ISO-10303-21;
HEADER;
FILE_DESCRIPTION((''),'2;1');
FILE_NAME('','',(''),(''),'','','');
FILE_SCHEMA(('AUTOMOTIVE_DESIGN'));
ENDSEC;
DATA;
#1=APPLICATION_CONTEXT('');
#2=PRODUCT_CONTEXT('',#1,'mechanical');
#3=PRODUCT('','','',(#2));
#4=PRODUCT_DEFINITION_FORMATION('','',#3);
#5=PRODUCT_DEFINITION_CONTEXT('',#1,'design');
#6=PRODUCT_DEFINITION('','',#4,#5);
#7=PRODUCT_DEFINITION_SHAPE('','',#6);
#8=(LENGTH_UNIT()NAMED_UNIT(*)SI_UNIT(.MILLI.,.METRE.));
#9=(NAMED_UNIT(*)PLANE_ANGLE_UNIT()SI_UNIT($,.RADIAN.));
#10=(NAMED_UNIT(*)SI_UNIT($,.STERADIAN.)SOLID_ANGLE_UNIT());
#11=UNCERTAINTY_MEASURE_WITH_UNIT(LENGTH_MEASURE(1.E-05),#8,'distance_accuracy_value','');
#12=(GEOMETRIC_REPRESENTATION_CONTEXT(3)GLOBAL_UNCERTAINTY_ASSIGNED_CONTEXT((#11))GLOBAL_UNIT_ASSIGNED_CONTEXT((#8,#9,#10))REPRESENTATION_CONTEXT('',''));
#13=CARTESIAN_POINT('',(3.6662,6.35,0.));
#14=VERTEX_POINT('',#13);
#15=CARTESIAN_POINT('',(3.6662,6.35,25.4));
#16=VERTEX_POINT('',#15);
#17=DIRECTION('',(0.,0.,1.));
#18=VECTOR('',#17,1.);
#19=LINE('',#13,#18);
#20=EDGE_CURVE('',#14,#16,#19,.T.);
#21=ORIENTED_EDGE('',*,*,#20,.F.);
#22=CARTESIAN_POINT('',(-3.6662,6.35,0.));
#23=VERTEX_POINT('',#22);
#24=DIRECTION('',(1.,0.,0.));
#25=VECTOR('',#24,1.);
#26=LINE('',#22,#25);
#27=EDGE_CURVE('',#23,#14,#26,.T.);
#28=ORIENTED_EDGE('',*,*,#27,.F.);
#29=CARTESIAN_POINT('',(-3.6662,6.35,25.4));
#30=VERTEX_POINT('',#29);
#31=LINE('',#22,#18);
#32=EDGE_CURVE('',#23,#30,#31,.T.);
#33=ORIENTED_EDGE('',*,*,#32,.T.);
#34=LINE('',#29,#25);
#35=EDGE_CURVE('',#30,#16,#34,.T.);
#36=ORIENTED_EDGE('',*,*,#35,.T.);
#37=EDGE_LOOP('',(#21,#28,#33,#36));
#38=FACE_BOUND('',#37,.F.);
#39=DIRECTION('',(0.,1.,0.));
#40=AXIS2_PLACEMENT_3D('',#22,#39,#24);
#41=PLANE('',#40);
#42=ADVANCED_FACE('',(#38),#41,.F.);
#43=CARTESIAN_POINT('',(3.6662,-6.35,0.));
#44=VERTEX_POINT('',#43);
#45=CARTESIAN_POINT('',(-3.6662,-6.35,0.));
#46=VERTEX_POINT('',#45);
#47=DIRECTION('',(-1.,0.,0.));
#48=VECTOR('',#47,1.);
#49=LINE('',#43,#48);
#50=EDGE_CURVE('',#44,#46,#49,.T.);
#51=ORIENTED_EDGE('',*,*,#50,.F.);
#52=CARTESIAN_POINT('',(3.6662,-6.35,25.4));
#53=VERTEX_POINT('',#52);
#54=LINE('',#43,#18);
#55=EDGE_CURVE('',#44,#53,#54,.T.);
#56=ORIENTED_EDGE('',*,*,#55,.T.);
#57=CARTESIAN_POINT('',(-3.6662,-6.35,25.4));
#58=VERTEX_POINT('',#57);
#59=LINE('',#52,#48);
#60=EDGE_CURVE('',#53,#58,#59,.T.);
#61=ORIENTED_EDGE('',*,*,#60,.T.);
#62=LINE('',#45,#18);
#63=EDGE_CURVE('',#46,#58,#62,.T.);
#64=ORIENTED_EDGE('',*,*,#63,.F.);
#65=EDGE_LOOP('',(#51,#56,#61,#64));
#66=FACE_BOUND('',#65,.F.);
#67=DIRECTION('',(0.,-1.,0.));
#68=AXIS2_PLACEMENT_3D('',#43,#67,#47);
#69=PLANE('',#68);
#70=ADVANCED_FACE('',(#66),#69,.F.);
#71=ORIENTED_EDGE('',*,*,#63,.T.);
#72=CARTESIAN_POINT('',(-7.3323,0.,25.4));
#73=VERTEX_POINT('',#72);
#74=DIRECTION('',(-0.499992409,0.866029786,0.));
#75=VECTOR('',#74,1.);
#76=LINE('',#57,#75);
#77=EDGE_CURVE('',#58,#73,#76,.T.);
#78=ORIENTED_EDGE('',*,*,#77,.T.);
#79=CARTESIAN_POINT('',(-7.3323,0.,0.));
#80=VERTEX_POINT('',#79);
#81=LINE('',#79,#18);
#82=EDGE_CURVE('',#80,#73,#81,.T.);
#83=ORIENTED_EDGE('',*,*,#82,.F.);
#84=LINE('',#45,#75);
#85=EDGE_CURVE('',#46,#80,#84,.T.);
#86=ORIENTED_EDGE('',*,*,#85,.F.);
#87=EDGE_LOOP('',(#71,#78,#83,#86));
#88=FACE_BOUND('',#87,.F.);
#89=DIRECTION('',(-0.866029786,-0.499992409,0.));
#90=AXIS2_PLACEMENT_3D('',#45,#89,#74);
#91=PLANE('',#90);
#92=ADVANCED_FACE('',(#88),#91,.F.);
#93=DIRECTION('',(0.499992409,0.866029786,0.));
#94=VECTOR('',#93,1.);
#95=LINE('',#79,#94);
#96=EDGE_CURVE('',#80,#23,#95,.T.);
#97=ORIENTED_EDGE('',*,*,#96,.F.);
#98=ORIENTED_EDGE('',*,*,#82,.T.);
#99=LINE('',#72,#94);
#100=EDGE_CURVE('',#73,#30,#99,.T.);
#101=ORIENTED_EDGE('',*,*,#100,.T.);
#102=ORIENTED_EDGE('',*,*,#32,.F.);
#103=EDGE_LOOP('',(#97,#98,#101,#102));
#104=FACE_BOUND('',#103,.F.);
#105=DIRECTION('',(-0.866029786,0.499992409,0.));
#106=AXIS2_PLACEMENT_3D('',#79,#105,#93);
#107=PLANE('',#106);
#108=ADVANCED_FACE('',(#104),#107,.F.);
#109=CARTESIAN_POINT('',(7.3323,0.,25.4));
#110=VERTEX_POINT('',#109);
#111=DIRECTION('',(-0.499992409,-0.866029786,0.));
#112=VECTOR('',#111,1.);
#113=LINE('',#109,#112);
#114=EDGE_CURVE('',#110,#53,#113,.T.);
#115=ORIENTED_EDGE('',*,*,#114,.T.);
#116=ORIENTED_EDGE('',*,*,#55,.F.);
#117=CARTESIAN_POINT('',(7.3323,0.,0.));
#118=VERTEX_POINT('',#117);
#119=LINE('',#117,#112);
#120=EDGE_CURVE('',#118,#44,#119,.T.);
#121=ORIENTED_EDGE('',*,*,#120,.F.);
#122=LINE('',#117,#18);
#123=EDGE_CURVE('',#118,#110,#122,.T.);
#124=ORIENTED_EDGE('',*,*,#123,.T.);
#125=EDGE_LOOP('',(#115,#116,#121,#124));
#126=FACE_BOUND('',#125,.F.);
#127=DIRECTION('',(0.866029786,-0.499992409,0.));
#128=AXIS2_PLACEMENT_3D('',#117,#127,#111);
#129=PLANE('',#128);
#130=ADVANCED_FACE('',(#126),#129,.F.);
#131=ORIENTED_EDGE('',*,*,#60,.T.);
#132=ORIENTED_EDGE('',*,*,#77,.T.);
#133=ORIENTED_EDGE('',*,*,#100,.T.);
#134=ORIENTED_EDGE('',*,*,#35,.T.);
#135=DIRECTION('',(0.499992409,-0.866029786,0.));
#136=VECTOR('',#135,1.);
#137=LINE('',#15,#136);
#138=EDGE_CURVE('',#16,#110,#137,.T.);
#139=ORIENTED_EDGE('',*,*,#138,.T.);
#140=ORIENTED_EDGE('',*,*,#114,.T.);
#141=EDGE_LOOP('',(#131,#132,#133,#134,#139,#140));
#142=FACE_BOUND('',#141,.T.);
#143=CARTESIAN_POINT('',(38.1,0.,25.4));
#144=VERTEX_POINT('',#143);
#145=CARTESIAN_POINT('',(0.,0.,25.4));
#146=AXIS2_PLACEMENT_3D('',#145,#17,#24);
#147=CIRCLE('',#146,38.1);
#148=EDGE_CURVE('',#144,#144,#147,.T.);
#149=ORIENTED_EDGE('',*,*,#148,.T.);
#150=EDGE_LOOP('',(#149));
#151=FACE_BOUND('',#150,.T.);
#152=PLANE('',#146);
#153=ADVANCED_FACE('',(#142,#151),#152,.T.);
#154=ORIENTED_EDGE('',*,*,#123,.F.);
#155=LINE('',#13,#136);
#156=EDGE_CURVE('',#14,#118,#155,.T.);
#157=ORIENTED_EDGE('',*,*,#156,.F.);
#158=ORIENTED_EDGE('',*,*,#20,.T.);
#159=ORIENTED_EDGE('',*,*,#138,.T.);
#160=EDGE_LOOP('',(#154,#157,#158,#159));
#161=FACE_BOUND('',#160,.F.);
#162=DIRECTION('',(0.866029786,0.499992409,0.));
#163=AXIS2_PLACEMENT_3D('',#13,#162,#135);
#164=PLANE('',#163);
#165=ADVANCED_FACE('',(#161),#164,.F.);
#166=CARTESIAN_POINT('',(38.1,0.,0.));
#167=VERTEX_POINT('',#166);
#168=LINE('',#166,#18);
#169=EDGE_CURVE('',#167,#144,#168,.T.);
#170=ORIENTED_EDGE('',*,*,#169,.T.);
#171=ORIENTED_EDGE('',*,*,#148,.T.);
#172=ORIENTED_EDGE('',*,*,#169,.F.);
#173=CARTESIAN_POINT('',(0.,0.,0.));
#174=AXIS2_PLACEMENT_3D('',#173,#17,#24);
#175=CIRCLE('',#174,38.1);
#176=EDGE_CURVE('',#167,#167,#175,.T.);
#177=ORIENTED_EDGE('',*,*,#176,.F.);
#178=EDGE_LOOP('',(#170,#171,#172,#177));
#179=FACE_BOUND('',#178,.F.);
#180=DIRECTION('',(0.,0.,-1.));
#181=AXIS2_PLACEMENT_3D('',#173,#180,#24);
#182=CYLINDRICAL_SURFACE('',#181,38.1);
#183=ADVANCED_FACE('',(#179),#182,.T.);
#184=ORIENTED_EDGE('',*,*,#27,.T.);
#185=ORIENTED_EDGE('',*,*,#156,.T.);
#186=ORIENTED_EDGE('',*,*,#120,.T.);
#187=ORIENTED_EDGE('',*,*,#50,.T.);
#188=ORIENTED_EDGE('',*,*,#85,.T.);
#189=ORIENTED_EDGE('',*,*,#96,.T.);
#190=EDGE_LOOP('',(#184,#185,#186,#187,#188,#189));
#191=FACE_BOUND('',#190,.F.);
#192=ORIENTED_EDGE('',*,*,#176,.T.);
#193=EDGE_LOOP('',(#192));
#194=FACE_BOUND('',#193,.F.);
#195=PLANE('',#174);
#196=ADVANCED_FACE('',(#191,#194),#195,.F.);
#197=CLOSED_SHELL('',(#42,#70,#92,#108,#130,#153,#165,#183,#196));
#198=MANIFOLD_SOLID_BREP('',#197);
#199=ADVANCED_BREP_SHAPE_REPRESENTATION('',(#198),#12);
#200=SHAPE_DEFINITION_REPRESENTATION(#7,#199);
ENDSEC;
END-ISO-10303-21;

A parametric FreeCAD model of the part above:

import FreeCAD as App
import Part
import Sketcher

V = App.Vector
Q = App.Units.Quantity

doc = App.newDocument("Part")
body = doc.addObject("PartDesign::Body", "Body")

sketch1 = doc.addObject("Sketcher::SketchObject", "Sketch")
body.addObject(sketch1)
sketch1.AttachmentSupport = (doc.XY_Plane, [""])
sketch1.MapMode = "FlatFace"
sketch1.addGeometry(Part.Circle(V(0, 0, 0), V(0, 0, 1), 38.1), False)
sketch1.addGeometry(Part.LineSegment(V(-3.6662, 6.35, 0), V(3.6662, 6.35, 0)), False)
sketch1.addGeometry(Part.LineSegment(V(3.6662, 6.35, 0), V(7.3323, 0, 0)), False)
sketch1.addGeometry(Part.LineSegment(V(7.3323, 0, 0), V(3.6662, -6.35, 0)), False)
sketch1.addGeometry(Part.LineSegment(V(3.6662, -6.35, 0), V(-3.6662, -6.35, 0)), False)
sketch1.addGeometry(Part.LineSegment(V(-3.6662, -6.35, 0), V(-7.3323, 0, 0)), False)
sketch1.addGeometry(Part.LineSegment(V(-7.3323, 0, 0), V(-3.6662, 6.35, 0)), False)
sketch1.addConstraint(Sketcher.Constraint("Coincident", 1, 2, 2, 1))
sketch1.addConstraint(Sketcher.Constraint("Coincident", 2, 2, 3, 1))
sketch1.addConstraint(Sketcher.Constraint("Coincident", 3, 2, 4, 1))
sketch1.addConstraint(Sketcher.Constraint("Coincident", 4, 2, 5, 1))
sketch1.addConstraint(Sketcher.Constraint("Coincident", 5, 2, 6, 1))
sketch1.addConstraint(Sketcher.Constraint("Coincident", 6, 2, 1, 1))
sketch1.addConstraint(Sketcher.Constraint("Horizontal", 1))
sketch1.addConstraint(Sketcher.Constraint("Horizontal", 4))
sketch1.addConstraint(Sketcher.Constraint("Coincident", 0, 3, -1, 1))
sketch1.addConstraint(Sketcher.Constraint("Symmetric", 1, 2, 4, 2, -1, 1))
sketch1.addConstraint(Sketcher.Constraint("Symmetric", 2, 2, 5, 2, -1, 1))
sketch1.addConstraint(Sketcher.Constraint("PointOnObject", 2, 2, -1))
sketch1.addConstraint(Sketcher.Constraint("Parallel", 3, 6))
sketch1.addConstraint(Sketcher.Constraint("Vertical", 1, 2, 3, 2))
sketch1.addConstraint(Sketcher.Constraint("Diameter", 0, Q("3 in")))
sketch1.addConstraint(Sketcher.Constraint("DistanceY", 3, 2, 1, 2, Q("0.5 in")))
sketch1.addConstraint(Sketcher.Constraint("Angle", 2, Q("-60.0005 deg")))
sketch1.addConstraint(Sketcher.Constraint("DistanceX", 4, 2, 2, 2, Q("0.433 in")))
pad1 = doc.addObject("PartDesign::Pad", "Pad")
body.addObject(pad1)
pad1.Profile = sketch1
pad1.Length = Q("1 in")

doc.recompute()
